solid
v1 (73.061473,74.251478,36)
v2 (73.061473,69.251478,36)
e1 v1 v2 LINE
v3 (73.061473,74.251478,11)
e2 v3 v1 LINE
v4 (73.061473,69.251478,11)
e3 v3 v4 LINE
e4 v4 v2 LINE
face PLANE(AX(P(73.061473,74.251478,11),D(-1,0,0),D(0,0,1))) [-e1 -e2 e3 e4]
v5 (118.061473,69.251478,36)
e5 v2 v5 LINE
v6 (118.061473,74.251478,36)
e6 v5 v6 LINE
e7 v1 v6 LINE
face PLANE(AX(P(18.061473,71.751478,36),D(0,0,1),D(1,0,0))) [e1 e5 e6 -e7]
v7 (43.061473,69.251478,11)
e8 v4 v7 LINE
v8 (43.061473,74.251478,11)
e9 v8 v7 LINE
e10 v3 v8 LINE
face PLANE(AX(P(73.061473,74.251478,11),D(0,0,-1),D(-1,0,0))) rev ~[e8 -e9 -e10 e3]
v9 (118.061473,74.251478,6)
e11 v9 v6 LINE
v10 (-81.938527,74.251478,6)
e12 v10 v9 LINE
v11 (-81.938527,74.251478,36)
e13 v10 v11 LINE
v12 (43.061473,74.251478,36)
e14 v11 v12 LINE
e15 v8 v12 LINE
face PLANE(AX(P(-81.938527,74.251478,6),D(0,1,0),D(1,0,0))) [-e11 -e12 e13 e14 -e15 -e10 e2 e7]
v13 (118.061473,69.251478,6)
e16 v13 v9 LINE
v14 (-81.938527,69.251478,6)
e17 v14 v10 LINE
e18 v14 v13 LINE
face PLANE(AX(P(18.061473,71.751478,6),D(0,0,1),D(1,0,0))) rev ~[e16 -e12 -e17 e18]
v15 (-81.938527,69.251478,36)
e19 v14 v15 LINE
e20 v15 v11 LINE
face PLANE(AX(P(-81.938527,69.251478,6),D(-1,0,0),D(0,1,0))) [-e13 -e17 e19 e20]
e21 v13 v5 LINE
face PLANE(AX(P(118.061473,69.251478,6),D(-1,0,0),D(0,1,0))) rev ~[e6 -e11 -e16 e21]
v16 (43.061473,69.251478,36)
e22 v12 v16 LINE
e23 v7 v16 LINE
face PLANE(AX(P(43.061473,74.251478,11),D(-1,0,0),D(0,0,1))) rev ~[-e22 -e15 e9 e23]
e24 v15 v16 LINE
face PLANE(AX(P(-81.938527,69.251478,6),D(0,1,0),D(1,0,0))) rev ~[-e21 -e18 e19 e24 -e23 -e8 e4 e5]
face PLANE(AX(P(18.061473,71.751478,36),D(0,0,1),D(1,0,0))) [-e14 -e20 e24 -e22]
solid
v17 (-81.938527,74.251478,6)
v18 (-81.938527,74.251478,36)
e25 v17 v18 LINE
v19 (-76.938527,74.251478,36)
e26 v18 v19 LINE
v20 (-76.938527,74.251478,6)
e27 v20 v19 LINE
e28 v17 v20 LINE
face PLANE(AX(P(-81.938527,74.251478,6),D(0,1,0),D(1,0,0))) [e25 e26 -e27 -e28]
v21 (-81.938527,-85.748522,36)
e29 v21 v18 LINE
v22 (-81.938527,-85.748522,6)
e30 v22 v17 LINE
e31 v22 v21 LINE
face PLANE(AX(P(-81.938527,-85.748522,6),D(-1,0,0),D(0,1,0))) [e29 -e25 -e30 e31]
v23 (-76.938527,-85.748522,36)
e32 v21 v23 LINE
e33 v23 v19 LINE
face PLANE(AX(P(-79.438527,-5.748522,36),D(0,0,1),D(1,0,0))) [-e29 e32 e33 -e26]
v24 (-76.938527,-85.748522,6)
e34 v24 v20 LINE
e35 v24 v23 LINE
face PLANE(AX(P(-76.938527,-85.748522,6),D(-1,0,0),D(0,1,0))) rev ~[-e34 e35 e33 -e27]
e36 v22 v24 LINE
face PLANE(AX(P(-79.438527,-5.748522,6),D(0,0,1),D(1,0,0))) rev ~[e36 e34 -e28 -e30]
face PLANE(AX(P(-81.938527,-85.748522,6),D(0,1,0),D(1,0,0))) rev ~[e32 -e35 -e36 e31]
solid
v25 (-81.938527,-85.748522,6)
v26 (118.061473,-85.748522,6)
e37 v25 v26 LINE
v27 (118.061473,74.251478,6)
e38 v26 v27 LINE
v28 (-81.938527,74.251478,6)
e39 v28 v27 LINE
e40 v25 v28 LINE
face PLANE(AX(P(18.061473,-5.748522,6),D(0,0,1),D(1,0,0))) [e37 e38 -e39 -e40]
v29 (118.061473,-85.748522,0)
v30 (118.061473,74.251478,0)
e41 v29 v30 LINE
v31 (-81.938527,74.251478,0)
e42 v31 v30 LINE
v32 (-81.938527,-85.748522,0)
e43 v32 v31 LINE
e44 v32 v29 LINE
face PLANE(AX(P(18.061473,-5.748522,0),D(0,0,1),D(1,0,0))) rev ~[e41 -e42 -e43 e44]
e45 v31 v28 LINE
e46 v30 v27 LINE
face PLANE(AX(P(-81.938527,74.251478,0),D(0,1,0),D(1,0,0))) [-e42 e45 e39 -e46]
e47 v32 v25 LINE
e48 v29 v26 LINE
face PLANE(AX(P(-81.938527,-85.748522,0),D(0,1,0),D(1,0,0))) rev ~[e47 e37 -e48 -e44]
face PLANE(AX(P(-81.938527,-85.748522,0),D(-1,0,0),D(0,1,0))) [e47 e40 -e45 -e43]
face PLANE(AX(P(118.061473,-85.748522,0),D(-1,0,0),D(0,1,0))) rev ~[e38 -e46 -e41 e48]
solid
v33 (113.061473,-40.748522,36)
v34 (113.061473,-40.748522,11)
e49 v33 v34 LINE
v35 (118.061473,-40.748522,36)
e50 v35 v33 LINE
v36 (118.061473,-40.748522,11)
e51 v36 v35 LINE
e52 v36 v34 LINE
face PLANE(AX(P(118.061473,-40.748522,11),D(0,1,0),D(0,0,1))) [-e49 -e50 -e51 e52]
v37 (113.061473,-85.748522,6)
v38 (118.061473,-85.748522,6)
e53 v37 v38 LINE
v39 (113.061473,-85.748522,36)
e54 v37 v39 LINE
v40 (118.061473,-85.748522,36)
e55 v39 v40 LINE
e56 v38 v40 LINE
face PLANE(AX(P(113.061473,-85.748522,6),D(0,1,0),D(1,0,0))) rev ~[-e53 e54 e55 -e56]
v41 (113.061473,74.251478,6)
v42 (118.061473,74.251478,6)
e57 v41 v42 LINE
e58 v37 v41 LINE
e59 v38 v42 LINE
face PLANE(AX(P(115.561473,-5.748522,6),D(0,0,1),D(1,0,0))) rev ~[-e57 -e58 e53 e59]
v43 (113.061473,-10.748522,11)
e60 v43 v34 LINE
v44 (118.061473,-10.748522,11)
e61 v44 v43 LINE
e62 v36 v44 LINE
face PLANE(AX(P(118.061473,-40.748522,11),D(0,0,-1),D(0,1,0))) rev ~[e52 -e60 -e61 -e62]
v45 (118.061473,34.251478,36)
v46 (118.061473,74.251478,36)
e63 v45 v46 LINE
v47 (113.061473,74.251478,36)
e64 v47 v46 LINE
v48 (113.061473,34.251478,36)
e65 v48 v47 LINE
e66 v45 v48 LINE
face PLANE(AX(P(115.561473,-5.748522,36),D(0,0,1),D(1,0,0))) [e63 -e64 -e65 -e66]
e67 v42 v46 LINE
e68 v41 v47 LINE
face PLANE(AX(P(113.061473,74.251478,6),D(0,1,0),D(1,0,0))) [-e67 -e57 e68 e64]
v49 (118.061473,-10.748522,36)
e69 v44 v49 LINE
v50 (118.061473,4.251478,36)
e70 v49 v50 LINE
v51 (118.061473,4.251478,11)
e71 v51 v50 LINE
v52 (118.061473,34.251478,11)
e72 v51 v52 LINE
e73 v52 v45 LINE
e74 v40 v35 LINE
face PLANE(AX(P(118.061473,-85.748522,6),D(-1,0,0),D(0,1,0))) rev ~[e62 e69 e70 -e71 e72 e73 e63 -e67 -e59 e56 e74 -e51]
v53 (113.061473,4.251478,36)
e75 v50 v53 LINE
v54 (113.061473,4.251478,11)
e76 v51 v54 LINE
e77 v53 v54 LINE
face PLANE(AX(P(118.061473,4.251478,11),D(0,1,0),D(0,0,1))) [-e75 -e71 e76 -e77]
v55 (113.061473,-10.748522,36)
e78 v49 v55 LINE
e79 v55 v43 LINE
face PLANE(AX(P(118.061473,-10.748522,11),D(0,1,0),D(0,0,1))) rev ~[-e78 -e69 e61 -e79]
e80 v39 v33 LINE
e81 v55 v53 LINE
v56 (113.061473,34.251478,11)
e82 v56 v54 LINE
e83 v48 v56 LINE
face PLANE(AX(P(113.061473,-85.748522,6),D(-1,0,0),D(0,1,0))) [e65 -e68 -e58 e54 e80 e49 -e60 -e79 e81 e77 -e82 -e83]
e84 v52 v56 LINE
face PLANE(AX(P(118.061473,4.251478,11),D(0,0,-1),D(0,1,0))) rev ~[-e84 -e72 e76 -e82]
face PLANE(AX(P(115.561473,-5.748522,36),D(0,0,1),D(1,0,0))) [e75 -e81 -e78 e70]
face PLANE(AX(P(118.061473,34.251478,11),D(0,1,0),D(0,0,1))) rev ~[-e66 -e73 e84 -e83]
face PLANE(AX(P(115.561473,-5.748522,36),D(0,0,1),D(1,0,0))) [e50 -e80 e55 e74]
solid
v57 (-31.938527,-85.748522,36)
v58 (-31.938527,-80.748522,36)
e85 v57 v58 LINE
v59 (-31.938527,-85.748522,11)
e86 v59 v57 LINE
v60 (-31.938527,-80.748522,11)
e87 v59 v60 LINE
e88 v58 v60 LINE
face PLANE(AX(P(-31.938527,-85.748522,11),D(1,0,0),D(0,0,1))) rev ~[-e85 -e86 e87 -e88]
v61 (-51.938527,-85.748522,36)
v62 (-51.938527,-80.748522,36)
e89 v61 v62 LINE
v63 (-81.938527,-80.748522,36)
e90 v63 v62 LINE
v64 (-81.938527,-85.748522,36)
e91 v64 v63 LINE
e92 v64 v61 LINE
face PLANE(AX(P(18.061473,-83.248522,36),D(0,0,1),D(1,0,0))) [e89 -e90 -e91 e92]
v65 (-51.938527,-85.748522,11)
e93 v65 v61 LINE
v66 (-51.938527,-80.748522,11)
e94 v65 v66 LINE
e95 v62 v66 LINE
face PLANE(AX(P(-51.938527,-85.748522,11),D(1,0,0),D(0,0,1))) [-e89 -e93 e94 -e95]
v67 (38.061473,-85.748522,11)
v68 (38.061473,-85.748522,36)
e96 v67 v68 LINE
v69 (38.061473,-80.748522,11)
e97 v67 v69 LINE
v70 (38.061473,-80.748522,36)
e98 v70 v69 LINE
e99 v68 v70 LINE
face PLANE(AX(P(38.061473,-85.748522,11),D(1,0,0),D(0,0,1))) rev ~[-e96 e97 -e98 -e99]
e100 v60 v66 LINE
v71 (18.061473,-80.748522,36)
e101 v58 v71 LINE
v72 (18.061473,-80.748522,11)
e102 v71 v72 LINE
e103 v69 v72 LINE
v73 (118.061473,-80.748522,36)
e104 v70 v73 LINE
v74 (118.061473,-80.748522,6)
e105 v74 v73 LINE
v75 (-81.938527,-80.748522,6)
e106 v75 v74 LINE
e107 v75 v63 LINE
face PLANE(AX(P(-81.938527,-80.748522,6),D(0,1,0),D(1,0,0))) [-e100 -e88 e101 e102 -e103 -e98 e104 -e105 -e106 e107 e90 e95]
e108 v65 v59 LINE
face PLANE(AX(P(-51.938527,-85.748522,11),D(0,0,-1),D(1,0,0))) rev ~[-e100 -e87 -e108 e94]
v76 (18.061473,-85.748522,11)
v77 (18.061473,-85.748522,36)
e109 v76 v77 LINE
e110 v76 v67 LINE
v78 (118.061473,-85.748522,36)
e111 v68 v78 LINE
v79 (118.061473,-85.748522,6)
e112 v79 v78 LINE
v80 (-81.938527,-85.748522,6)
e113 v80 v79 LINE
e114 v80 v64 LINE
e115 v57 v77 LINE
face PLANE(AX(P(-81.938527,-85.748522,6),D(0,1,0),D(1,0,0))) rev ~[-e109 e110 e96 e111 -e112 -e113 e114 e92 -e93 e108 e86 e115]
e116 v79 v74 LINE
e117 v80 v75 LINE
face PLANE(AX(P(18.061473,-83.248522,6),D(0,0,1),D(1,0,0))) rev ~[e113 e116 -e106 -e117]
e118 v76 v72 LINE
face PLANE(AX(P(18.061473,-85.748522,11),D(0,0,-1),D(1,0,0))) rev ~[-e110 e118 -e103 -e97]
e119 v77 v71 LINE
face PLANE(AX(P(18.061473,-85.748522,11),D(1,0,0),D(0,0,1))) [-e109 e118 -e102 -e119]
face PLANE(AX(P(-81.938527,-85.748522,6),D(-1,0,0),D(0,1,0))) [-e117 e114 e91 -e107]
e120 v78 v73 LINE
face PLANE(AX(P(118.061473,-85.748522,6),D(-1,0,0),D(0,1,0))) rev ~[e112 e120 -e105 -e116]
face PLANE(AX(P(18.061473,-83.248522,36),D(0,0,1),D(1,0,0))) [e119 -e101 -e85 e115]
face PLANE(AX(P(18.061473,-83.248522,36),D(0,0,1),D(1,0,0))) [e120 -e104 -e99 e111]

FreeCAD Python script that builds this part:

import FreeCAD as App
import Part
import Sketcher
from FreeCAD import Vector
Q = App.Units.Quantity


def add_polygon(sketch, points):
    """Adds a closed chain of lines whose ends are joined by coincident constraints."""
    first, n = sketch.GeometryCount, len(points)
    for a, b in zip(points, points[1:] + points[:1]):
        sketch.addGeometry(Part.LineSegment(App.Vector(*a, 0), App.Vector(*b, 0)), False)
    for i in range(n):
        sketch.addConstraint(Sketcher.Constraint("Coincident", first + i, 2, first + (i + 1) % n, 1))

doc = App.newDocument("Part")
body = doc.addObject("PartDesign::Body", "Body")

# Sketch on XY plane
sketch1 = body.newObject("Sketcher::SketchObject", "Sketch")
sketch1.AttachmentSupport = (doc.getObject("XY_Plane"), [""])
sketch1.MapMode = "FlatFace"
add_polygon(sketch1, [(-81.938527, 74.251478), (-81.938527, -85.748522), (118.061473, -85.748522), (118.061473, 74.251478)])  # lines 0-3
sketch1.addConstraint([
    Sketcher.Constraint("Vertical", 0),
    Sketcher.Constraint("Horizontal", 1),
    Sketcher.Constraint("Vertical", 2),
    Sketcher.Constraint("Horizontal", 3),
    Sketcher.Constraint("DistanceX", 1, 1, 1, 2, Q("200 mm")),
    Sketcher.Constraint("DistanceY", 0, 2, 0, 1, Q("160 mm")),
    Sketcher.Constraint("DistanceY", 0, 2, -1, 1, Q("85.748522 mm")),
    Sketcher.Constraint("DistanceX", 0, 2, -1, 1, Q("81.938527 mm")),
])
pad1 = body.newObject("PartDesign::Pad", "Pad")
pad1.Profile = sketch1
pad1.Length = 6
body2 = doc.addObject("PartDesign::Body", "Body001")

# Sketch on XY plane
sketch2 = body2.newObject("Sketcher::SketchObject", "Sketch001")
sketch2.AttachmentSupport = (doc.getObject("XY_Plane001"), [""])
sketch2.MapMode = "FlatFace"
sketch2.AttachmentOffset = App.Placement(Vector(0, 0, 6), App.Rotation())
add_polygon(sketch2, [(-81.938527, 74.251478), (-81.938527, 69.251478), (118.061473, 69.251478), (118.061473, 74.251478)])  # lines 0-3
sketch2.addConstraint([
    Sketcher.Constraint("Vertical", 0),
    Sketcher.Constraint("Horizontal", 1),
    Sketcher.Constraint("Vertical", 2),
    Sketcher.Constraint("Horizontal", 3),
    Sketcher.Constraint("DistanceX", 1, 1, 1, 2, Q("200 mm")),
    Sketcher.Constraint("DistanceY", 0, 2, 0, 1, Q("5 mm")),
    Sketcher.Constraint("DistanceY", -1, 1, 0, 2, Q("69.251478 mm")),
    Sketcher.Constraint("DistanceX", 0, 2, -1, 1, Q("81.938527 mm")),
])
pad2 = body2.newObject("PartDesign::Pad", "Pad001")
pad2.Profile = sketch2
pad2.Length = 30

# Sketch on XZ plane
sketch3 = body2.newObject("Sketcher::SketchObject", "Sketch002")
sketch3.AttachmentSupport = (doc.getObject("XZ_Plane001"), [""])
sketch3.MapMode = "FlatFace"
sketch3.AttachmentOffset = App.Placement(Vector(0, 0, -74.251478), App.Rotation())
add_polygon(sketch3, [(73.061473, 36), (73.061473, 11), (43.061473, 11), (43.061473, 36)])  # lines 0-3
sketch3.addConstraint([
    Sketcher.Constraint("Vertical", 0),
    Sketcher.Constraint("Horizontal", 1),
    Sketcher.Constraint("Vertical", 2),
    Sketcher.Constraint("Horizontal", 3),
    Sketcher.Constraint("DistanceX", 1, 2, 1, 1, Q("30 mm")),
    Sketcher.Constraint("DistanceY", 0, 2, 0, 1, Q("25 mm")),
    Sketcher.Constraint("DistanceY", -1, 1, 0, 2, Q("11 mm")),
    Sketcher.Constraint("DistanceX", -1, 1, 0, 2, Q("73.061473 mm")),
])
pocket1 = body2.newObject("PartDesign::Pocket", "Pocket")
pocket1.Profile = sketch3
pocket1.Length = 25
pocket1.Reversed = True
body3 = doc.addObject("PartDesign::Body", "Body002")

# Sketch on XY plane
sketch4 = body3.newObject("Sketcher::SketchObject", "Sketch003")
sketch4.AttachmentSupport = (doc.getObject("XY_Plane002"), [""])
sketch4.MapMode = "FlatFace"
sketch4.AttachmentOffset = App.Placement(Vector(0, 0, 6), App.Rotation())
add_polygon(sketch4, [(-81.938527, 74.251478), (-81.938527, -85.748522), (-76.938527, -85.748522), (-76.938527, 74.251478)])  # lines 0-3
sketch4.addConstraint([
    Sketcher.Constraint("Vertical", 0),
    Sketcher.Constraint("Horizontal", 1),
    Sketcher.Constraint("Vertical", 2),
    Sketcher.Constraint("Horizontal", 3),
    Sketcher.Constraint("DistanceX", 1, 1, 1, 2, Q("5 mm")),
    Sketcher.Constraint("DistanceY", 0, 2, 0, 1, Q("160 mm")),
    Sketcher.Constraint("DistanceY", 0, 2, -1, 1, Q("85.748522 mm")),
    Sketcher.Constraint("DistanceX", 0, 2, -1, 1, Q("81.938527 mm")),
])
pad3 = body3.newObject("PartDesign::Pad", "Pad002")
pad3.Profile = sketch4
pad3.Length = 30
body4 = doc.addObject("PartDesign::Body", "Body003")

# Sketch on XY plane
sketch5 = body4.newObject("Sketcher::SketchObject", "Sketch004")
sketch5.AttachmentSupport = (doc.getObject("XY_Plane003"), [""])
sketch5.MapMode = "FlatFace"
sketch5.AttachmentOffset = App.Placement(Vector(0, 0, 6), App.Rotation())
add_polygon(sketch5, [(-81.938527, -80.748522), (-81.938527, -85.748522), (118.061473, -85.748522), (118.061473, -80.748522)])  # lines 0-3
sketch5.addConstraint([
    Sketcher.Constraint("Vertical", 0),
    Sketcher.Constraint("Horizontal", 1),
    Sketcher.Constraint("Vertical", 2),
    Sketcher.Constraint("Horizontal", 3),
    Sketcher.Constraint("DistanceX", 1, 1, 1, 2, Q("200 mm")),
    Sketcher.Constraint("DistanceY", 0, 2, 0, 1, Q("5 mm")),
    Sketcher.Constraint("DistanceY", 0, 2, -1, 1, Q("85.748522 mm")),
    Sketcher.Constraint("DistanceX", 0, 2, -1, 1, Q("81.938527 mm")),
])
pad4 = body4.newObject("PartDesign::Pad", "Pad003")
pad4.Profile = sketch5
pad4.Length = 30

# Sketch on XZ plane
sketch6 = body4.newObject("Sketcher::SketchObject", "Sketch005")
sketch6.AttachmentSupport = (doc.getObject("XZ_Plane003"), [""])
sketch6.MapMode = "FlatFace"
sketch6.AttachmentOffset = App.Placement(Vector(0, 0, 85.748522), App.Rotation())
add_polygon(sketch6, [(-51.938527, 36), (-51.938527, 11), (-31.938527, 11), (-31.938527, 36)])  # lines 0-3
sketch6.addConstraint([
    Sketcher.Constraint("Vertical", 0),
    Sketcher.Constraint("Horizontal", 1),
    Sketcher.Constraint("Vertical", 2),
    Sketcher.Constraint("Horizontal", 3),
    Sketcher.Constraint("DistanceX", 1, 1, 1, 2, Q("20 mm")),
    Sketcher.Constraint("DistanceY", 0, 2, 0, 1, Q("25 mm")),
    Sketcher.Constraint("DistanceY", -1, 1, 0, 2, Q("11 mm")),
    Sketcher.Constraint("DistanceX", 0, 2, -1, 1, Q("51.938527 mm")),
])
pocket2 = body4.newObject("PartDesign::Pocket", "Pocket001")
pocket2.Profile = sketch6
pocket2.Length = 25

# Sketch on XZ plane
sketch7 = body4.newObject("Sketcher::SketchObject", "Sketch006")
sketch7.AttachmentSupport = (doc.getObject("XZ_Plane003"), [""])
sketch7.MapMode = "FlatFace"
sketch7.AttachmentOffset = App.Placement(Vector(0, 0, 85.748522), App.Rotation())
add_polygon(sketch7, [(18.061473, 36), (18.061473, 11), (38.061473, 11), (38.061473, 36)])  # lines 0-3
sketch7.addConstraint([
    Sketcher.Constraint("Vertical", 0),
    Sketcher.Constraint("Horizontal", 1),
    Sketcher.Constraint("Vertical", 2),
    Sketcher.Constraint("Horizontal", 3),
    Sketcher.Constraint("DistanceX", 1, 1, 1, 2, Q("20 mm")),
    Sketcher.Constraint("DistanceY", 0, 2, 0, 1, Q("25 mm")),
    Sketcher.Constraint("DistanceY", -1, 1, 0, 2, Q("11 mm")),
    Sketcher.Constraint("DistanceX", -1, 1, 0, 2, Q("18.061473 mm")),
])
pocket3 = body4.newObject("PartDesign::Pocket", "Pocket002")
pocket3.Profile = sketch7
pocket3.Length = 25
body5 = doc.addObject("PartDesign::Body", "Body004")

# Sketch on XY plane
sketch8 = body5.newObject("Sketcher::SketchObject", "Sketch007")
sketch8.AttachmentSupport = (doc.getObject("XY_Plane004"), [""])
sketch8.MapMode = "FlatFace"
sketch8.AttachmentOffset = App.Placement(Vector(0, 0, 6), App.Rotation())
add_polygon(sketch8, [(113.061473, 74.251478), (113.061473, -85.748522), (118.061473, -85.748522), (118.061473, 74.251478)])  # lines 0-3
sketch8.addConstraint([
    Sketcher.Constraint("Vertical", 0),
    Sketcher.Constraint("Horizontal", 1),
    Sketcher.Constraint("Vertical", 2),
    Sketcher.Constraint("Horizontal", 3),
    Sketcher.Constraint("DistanceX", 1, 1, 1, 2, Q("5 mm")),
    Sketcher.Constraint("DistanceY", 0, 2, 0, 1, Q("160 mm")),
    Sketcher.Constraint("DistanceY", 0, 2, -1, 1, Q("85.748522 mm")),
    Sketcher.Constraint("DistanceX", -1, 1, 0, 2, Q("113.061473 mm")),
])
pad5 = body5.newObject("PartDesign::Pad", "Pad004")
pad5.Profile = sketch8
pad5.Length = 30

# Sketch on YZ plane
sketch9 = body5.newObject("Sketcher::SketchObject", "Sketch008")
sketch9.AttachmentSupport = (doc.getObject("YZ_Plane004"), [""])
sketch9.MapMode = "FlatFace"
sketch9.AttachmentOffset = App.Placement(Vector(0, 0, 118.061473), App.Rotation())
add_polygon(sketch9, [(-40.748522, 36), (-40.748522, 11), (-10.748522, 11), (-10.748522, 36)])  # lines 0-3
sketch9.addConstraint([
    Sketcher.Constraint("Vertical", 0),
    Sketcher.Constraint("Horizontal", 1),
    Sketcher.Constraint("Vertical", 2),
    Sketcher.Constraint("Horizontal", 3),
    Sketcher.Constraint("DistanceX", 1, 1, 1, 2, Q("30 mm")),
    Sketcher.Constraint("DistanceY", 0, 2, 0, 1, Q("25 mm")),
    Sketcher.Constraint("DistanceY", -1, 1, 0, 2, Q("11 mm")),
    Sketcher.Constraint("DistanceX", 0, 2, -1, 1, Q("40.748522 mm")),
])
pocket4 = body5.newObject("PartDesign::Pocket", "Pocket003")
pocket4.Profile = sketch9
pocket4.Length = 25

# Sketch on YZ plane
sketch10 = body5.newObject("Sketcher::SketchObject", "Sketch009")
sketch10.AttachmentSupport = (doc.getObject("YZ_Plane004"), [""])
sketch10.MapMode = "FlatFace"
sketch10.AttachmentOffset = App.Placement(Vector(0, 0, 118.061473), App.Rotation())
add_polygon(sketch10, [(4.251478, 36), (4.251478, 11), (34.251478, 11), (34.251478, 36)])  # lines 0-3
sketch10.addConstraint([
    Sketcher.Constraint("Vertical", 0),
    Sketcher.Constraint("Horizontal", 1),
    Sketcher.Constraint("Vertical", 2),
    Sketcher.Constraint("Horizontal", 3),
    Sketcher.Constraint("DistanceX", 1, 1, 1, 2, Q("30 mm")),
    Sketcher.Constraint("DistanceY", 0, 2, 0, 1, Q("25 mm")),
    Sketcher.Constraint("DistanceY", -1, 1, 0, 2, Q("11 mm")),
    Sketcher.Constraint("DistanceX", -1, 1, 0, 2, Q("4.251478 mm")),
])
pocket5 = body5.newObject("PartDesign::Pocket", "Pocket004")
pocket5.Profile = sketch10
pocket5.Length = 25

doc.recompute()
